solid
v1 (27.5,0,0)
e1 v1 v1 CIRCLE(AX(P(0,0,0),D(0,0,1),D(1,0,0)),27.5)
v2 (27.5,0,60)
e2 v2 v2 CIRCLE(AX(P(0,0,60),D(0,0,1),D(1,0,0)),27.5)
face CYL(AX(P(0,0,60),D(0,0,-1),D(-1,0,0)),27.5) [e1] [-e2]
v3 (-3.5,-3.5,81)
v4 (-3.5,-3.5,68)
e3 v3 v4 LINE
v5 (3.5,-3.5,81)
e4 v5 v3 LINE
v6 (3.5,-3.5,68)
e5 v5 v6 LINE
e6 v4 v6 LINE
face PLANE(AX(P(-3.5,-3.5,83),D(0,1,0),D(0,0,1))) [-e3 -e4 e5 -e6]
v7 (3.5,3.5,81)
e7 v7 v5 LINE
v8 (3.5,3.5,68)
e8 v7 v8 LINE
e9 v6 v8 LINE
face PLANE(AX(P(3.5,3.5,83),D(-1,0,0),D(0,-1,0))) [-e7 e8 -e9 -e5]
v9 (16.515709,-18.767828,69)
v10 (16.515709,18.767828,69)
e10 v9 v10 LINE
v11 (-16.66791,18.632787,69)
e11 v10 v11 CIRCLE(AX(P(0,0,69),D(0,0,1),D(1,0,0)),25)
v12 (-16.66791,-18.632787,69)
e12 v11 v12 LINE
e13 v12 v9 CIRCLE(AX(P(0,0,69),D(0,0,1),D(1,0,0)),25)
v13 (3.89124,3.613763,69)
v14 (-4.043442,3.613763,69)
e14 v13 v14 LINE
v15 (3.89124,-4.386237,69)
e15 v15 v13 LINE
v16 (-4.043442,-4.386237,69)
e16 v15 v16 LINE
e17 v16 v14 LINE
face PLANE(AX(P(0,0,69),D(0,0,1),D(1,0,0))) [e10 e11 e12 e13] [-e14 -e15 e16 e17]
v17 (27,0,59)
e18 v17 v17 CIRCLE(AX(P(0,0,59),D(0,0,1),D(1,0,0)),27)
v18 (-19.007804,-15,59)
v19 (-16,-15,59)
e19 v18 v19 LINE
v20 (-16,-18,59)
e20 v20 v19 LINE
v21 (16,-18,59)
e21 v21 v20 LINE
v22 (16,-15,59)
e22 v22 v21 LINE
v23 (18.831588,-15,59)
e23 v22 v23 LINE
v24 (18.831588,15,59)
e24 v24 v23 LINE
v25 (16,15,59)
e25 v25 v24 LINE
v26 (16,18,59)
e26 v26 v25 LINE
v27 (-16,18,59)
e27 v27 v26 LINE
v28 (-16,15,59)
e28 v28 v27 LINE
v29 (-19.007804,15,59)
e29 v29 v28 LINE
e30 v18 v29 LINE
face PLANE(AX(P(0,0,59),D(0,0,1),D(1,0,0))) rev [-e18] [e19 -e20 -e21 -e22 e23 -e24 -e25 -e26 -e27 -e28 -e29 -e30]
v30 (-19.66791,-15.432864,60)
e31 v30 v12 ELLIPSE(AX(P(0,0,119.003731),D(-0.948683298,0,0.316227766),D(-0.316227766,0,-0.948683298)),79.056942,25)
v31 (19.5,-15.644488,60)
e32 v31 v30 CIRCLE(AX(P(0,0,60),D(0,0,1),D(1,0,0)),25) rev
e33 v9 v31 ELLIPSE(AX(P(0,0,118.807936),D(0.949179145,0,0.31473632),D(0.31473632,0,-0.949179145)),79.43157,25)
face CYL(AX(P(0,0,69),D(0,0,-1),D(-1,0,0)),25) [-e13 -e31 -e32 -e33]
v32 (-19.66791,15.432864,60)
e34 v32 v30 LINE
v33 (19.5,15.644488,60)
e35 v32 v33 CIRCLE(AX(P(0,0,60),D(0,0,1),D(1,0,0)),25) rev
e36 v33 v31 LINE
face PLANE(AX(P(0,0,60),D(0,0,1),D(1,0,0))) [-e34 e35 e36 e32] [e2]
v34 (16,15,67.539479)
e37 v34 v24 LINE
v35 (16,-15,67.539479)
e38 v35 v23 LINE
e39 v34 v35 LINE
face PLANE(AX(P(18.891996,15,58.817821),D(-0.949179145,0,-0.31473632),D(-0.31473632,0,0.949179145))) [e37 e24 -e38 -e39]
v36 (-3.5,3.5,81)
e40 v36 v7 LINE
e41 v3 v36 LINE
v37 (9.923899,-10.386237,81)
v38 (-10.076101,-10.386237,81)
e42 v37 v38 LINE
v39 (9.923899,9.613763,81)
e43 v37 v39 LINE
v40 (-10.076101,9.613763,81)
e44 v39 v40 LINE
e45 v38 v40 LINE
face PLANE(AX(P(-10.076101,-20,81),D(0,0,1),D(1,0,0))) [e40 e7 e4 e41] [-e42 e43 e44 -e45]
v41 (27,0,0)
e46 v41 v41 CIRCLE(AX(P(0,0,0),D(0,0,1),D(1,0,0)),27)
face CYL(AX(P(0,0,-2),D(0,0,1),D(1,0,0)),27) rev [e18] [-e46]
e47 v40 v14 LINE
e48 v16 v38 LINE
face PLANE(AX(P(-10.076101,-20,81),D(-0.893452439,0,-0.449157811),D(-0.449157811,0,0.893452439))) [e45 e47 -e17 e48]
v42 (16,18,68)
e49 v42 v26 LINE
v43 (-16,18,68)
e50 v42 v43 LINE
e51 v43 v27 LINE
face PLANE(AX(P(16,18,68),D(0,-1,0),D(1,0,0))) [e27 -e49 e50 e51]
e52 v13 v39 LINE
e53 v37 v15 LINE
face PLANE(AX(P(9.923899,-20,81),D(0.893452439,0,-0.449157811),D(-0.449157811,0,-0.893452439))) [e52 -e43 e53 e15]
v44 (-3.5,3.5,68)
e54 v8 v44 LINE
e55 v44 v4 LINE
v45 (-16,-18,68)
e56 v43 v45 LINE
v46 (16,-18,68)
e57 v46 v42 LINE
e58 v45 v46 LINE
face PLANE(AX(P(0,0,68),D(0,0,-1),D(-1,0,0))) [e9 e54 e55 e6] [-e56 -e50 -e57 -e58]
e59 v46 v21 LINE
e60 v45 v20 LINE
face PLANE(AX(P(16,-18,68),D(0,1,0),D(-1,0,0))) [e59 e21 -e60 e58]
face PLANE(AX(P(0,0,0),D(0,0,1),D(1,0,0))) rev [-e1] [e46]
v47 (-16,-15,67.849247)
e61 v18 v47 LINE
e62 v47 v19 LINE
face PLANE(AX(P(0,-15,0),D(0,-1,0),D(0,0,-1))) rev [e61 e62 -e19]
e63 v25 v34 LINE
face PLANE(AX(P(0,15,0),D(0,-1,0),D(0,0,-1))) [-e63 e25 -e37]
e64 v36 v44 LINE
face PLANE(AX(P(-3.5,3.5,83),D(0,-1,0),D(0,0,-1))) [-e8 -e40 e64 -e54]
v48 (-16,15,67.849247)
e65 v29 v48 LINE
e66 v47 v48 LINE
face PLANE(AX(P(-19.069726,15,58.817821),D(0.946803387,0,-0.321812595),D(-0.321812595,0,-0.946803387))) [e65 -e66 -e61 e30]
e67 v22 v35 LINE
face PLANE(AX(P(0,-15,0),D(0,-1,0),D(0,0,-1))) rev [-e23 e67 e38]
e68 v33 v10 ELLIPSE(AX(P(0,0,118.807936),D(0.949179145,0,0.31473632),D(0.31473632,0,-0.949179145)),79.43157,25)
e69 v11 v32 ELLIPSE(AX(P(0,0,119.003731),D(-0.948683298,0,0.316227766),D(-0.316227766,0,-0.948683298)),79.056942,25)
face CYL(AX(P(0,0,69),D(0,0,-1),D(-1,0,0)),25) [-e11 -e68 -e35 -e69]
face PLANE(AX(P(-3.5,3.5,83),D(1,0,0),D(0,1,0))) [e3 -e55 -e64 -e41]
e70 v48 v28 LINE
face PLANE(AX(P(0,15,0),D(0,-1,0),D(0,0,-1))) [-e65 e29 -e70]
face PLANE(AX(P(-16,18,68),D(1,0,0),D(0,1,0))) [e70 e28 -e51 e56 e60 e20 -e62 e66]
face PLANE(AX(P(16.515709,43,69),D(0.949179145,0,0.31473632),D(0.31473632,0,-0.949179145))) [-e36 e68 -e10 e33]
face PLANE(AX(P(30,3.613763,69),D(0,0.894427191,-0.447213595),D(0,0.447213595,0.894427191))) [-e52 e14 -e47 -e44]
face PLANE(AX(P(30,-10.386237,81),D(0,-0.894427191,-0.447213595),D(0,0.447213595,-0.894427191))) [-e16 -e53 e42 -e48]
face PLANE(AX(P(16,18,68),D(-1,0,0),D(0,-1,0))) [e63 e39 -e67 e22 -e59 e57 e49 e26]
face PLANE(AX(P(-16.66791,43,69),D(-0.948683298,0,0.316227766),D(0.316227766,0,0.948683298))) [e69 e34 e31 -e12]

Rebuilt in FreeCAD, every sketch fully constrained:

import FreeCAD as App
import Part
import Sketcher
from FreeCAD import Vector


def add_polygon(sketch, points):
    """Adds a closed chain of lines whose ends are joined by coincident constraints."""
    first, n = sketch.GeometryCount, len(points)
    for a, b in zip(points, points[1:] + points[:1]):
        sketch.addGeometry(Part.LineSegment(App.Vector(*a, 0), App.Vector(*b, 0)), False)
    for i in range(n):
        sketch.addConstraint(Sketcher.Constraint("Coincident", first + i, 2, first + (i + 1) % n, 1))

doc = App.newDocument("Part")
body = doc.addObject("PartDesign::Body", "Body")

# Sketch on XY plane
sketch1 = body.newObject("Sketcher::SketchObject", "Sketch")
sketch1.AttachmentSupport = (doc.getObject("XY_Plane"), [""])
sketch1.MapMode = "FlatFace"
sketch1.addGeometry(Part.Circle(Vector(0, 0, 0), Vector(0, 0, 1), 28), False)
sketch1.addConstraint(Sketcher.Constraint("Coincident", 0, 3, -1, 1))
sketch1.addConstraint(Sketcher.Constraint("Diameter", 0, 55.0))
pad1 = body.newObject("PartDesign::Pad", "Pad")
pad1.Profile = sketch1
pad1.Length = 60

# Sketch on XY plane
sketch2 = body.newObject("Sketcher::SketchObject", "Sketch001")
sketch2.AttachmentSupport = (doc.getObject("XY_Plane"), [""])
sketch2.MapMode = "FlatFace"
sketch2.addGeometry(Part.Circle(Vector(0, 0, 0), Vector(0, 0, 1), 27), False)
sketch2.addConstraint(Sketcher.Constraint("Coincident", 0, 3, -1, 1))
sketch2.addConstraint(Sketcher.Constraint("Diameter", 0, 54.0))
pocket1 = body.newObject("PartDesign::Pocket", "Pocket")
pocket1.Profile = sketch2
pocket1.Type = "TwoLengths"
pocket1.Length = 59
pocket1.Length2 = 2
pocket1.Reversed = True

# Sketch on XY plane
sketch3 = body.newObject("Sketcher::SketchObject", "Sketch002")
sketch3.AttachmentSupport = (doc.getObject("XY_Plane"), [""])
sketch3.MapMode = "FlatFace"
sketch3.addGeometry(Part.Circle(Vector(0, 0, 0), Vector(0, 0, 1), 25), False)
sketch3.addConstraint(Sketcher.Constraint("Coincident", 0, 3, -1, 1))
sketch3.addConstraint(Sketcher.Constraint("Diameter", 0, 50.0))
pad2 = body.newObject("PartDesign::Pad", "Pad001")
pad2.Profile = sketch3
pad2.Length = 69

# Sketch on XZ plane
sketch4 = body.newObject("Sketcher::SketchObject", "Sketch003")
sketch4.AttachmentSupport = (doc.getObject("XZ_Plane"), [""])
sketch4.MapMode = "FlatFace"
add_polygon(sketch4, [(-20, 60), (-28, 60), (-28, 69), (-17, 69)])  # lines 0-3
add_polygon(sketch4, [(28, 60), (20, 60), (17, 69), (28, 69)])  # lines 4-7
sketch4.addConstraint(Sketcher.Constraint("Horizontal", 0))
sketch4.addConstraint(Sketcher.Constraint("Vertical", 1))
sketch4.addConstraint(Sketcher.Constraint("Horizontal", 2))
sketch4.addConstraint(Sketcher.Constraint("Horizontal", 4))
sketch4.addConstraint(Sketcher.Constraint("Horizontal", 6))
sketch4.addConstraint(Sketcher.Constraint("Vertical", 7))
sketch4.addConstraint(Sketcher.Constraint("Horizontal", 3, 2, 4, 2))
sketch4.addConstraint(Sketcher.Constraint("Horizontal", 2, 2, 5, 2))
sketch4.addConstraint(Sketcher.Constraint("Equal", 0, 4))
sketch4.addConstraint(Sketcher.Constraint("DistanceX", 0, 2, 0, 1, 8.0))
sketch4.addConstraint(Sketcher.Constraint("DistanceX", 2, 1, 2, 2, 11.0))
sketch4.addConstraint(Sketcher.Constraint("DistanceY", 1, 1, 1, 2, 9.0))
sketch4.addConstraint(Sketcher.Constraint("DistanceY", -1, 1, 0, 2, 60.0))
sketch4.addConstraint(Sketcher.Constraint("DistanceX", -1, 1, 4, 2, 19.5))
sketch4.addConstraint(Sketcher.Constraint("DistanceX", 6, 1, 6, 2, 10.984291))
sketch4.addConstraint(Sketcher.Constraint("DistanceX", 0, 2, -1, 1, 27.66791))
pocket2 = body.newObject("PartDesign::Pocket", "Pocket001")
pocket2.Profile = sketch4
pocket2.Type = "ThroughAll"
pocket2.Midplane = True

# Sketch on XZ plane
sketch5 = body.newObject("Sketcher::SketchObject", "Sketch004")
sketch5.AttachmentSupport = (doc.getObject("XZ_Plane"), [""])
sketch5.MapMode = "FlatFace"
add_polygon(sketch5, [(4, 69), (-4, 69), (-10, 81), (10, 81)])  # lines 0-3
sketch5.addConstraint(Sketcher.Constraint("Horizontal", 0))
sketch5.addConstraint(Sketcher.Constraint("Horizontal", 2))
sketch5.addConstraint(Sketcher.Constraint("Equal", 1, 3))
sketch5.addConstraint(Sketcher.Constraint("DistanceX", 2, 1, 2, 2, 20.0))
sketch5.addConstraint(Sketcher.Constraint("DistanceY", -1, 1, 0, 2, 69.0))
sketch5.addConstraint(Sketcher.Constraint("DistanceY", -1, 1, 1, 2, 81.0))
sketch5.addConstraint(Sketcher.Constraint("DistanceX", 1, 2, -1, 1, 10.076101))
sketch5.addConstraint(Sketcher.Constraint("DistanceX", 0, 2, 0, 1, 7.934682))
pad3 = body.newObject("PartDesign::Pad", "Pad002")
pad3.Profile = sketch5
pad3.Type = "TwoLengths"
pad3.Length = 20
pad3.Length2 = 20
pad3.Reversed = True

# Sketch on YZ plane
sketch6 = body.newObject("Sketcher::SketchObject", "Sketch005")
sketch6.AttachmentSupport = (doc.getObject("YZ_Plane"), [""])
sketch6.MapMode = "FlatFace"
add_polygon(sketch6, [(-4, 69), (-10, 81), (-23, 81), (-23, 69)])  # lines 0-3
add_polygon(sketch6, [(10, 81), (4, 69), (21, 69), (21, 81)])  # lines 4-7
sketch6.addConstraint(Sketcher.Constraint("Horizontal", 1))
sketch6.addConstraint(Sketcher.Constraint("Vertical", 2))
sketch6.addConstraint(Sketcher.Constraint("Horizontal", 3))
sketch6.addConstraint(Sketcher.Constraint("Horizontal", 5))
sketch6.addConstraint(Sketcher.Constraint("Vertical", 6))
sketch6.addConstraint(Sketcher.Constraint("Horizontal", 7))
sketch6.addConstraint(Sketcher.Constraint("Horizontal", 3, 2, 4, 2))
sketch6.addConstraint(Sketcher.Constraint("Horizontal", 1, 2, 6, 2))
sketch6.addConstraint(Sketcher.Constraint("Equal", 0, 4))
sketch6.addConstraint(Sketcher.Constraint("DistanceY", 2, 2, 2, 1, 12.0))
sketch6.addConstraint(Sketcher.Constraint("DistanceY", -1, 1, 0, 2, 81.0))
sketch6.addConstraint(Sketcher.Constraint("DistanceX", 0, 2, 3, 2, 6.0))
sketch6.addConstraint(Sketcher.Constraint("DistanceX", 3, 2, 4, 2, 8.0))
sketch6.addConstraint(Sketcher.Constraint("DistanceX", 5, 1, 5, 2, 17.773281))
sketch6.addConstraint(Sketcher.Constraint("DistanceX", 1, 2, 1, 1, 12.420543))
sketch6.addConstraint(Sketcher.Constraint("DistanceX", 1, 2, -1, 1, 22.80678))
pocket3 = body.newObject("PartDesign::Pocket", "Pocket002")
pocket3.Profile = sketch6
pocket3.Type = "ThroughAll"
pocket3.Midplane = True

# Sketch on XY plane
sketch7 = body.newObject("Sketcher::SketchObject", "Sketch006")
sketch7.AttachmentSupport = (doc.getObject("XY_Plane"), [""])
sketch7.MapMode = "FlatFace"
sketch7.addGeometry(Part.Circle(Vector(0, 0, 0), Vector(0, 0, 1), 26), False)
sketch7.addConstraint(Sketcher.Constraint("Coincident", 0, 3, -1, 1))
sketch7.addConstraint(Sketcher.Constraint("Diameter", 0, 51.755832))
pocket4 = body.newObject("PartDesign::Pocket", "Pocket003")
pocket4.Profile = sketch7
pocket4.Length = 59
pocket4.Reversed = True

# Sketch on XY plane
sketch8 = body.newObject("Sketcher::SketchObject", "Sketch007")
sketch8.AttachmentSupport = (doc.getObject("XY_Plane"), [""])
sketch8.MapMode = "FlatFace"
add_polygon(sketch8, [(-16, 18), (-16, -18), (16, -18), (16, 18)])  # lines 0-3
sketch8.addConstraint(Sketcher.Constraint("Vertical", 0))
sketch8.addConstraint(Sketcher.Constraint("Horizontal", 1))
sketch8.addConstraint(Sketcher.Constraint("Vertical", 2))
sketch8.addConstraint(Sketcher.Constraint("Horizontal", 3))
sketch8.addConstraint(Sketcher.Constraint("Symmetric", 0, 2, 2, 2, -1, 1))
sketch8.addConstraint(Sketcher.Constraint("DistanceX", 1, 1, 1, 2, 32.0))
sketch8.addConstraint(Sketcher.Constraint("DistanceY", 0, 2, 0, 1, 36.0))
pocket5 = body.newObject("PartDesign::Pocket", "Pocket004")
pocket5.Profile = sketch8
pocket5.Type = "TwoLengths"
pocket5.Length = 68
pocket5.Length2 = 1
pocket5.Reversed = True

# Sketch on XZ plane
sketch9 = body.newObject("Sketcher::SketchObject", "Sketch008")
sketch9.AttachmentSupport = (doc.getObject("XZ_Plane"), [""])
sketch9.MapMode = "FlatFace"
add_polygon(sketch9, [(19, 59), (-19, 59), (-16, 68), (16, 68)])  # lines 0-3
sketch9.addConstraint(Sketcher.Constraint("Horizontal", 0))
sketch9.addConstraint(Sketcher.Constraint("Horizontal", 2))
sketch9.addConstraint(Sketcher.Constraint("DistanceY", -1, 1, 1, 2, 68.0))
sketch9.addConstraint(Sketcher.Constraint("DistanceX", 0, 2, 0, 1, 37.961722))
sketch9.addConstraint(Sketcher.Constraint("DistanceX", 2, 2, 3, 2, 3.044699))
sketch9.addConstraint(Sketcher.Constraint("Distance", 3, 9.67381))
sketch9.addConstraint(Sketcher.Constraint("DistanceX", 2, 1, 2, 2, 31.796057))
sketch9.addConstraint(Sketcher.Constraint("DistanceX", 1, 2, -1, 1, 15.94876))
pocket6 = body.newObject("PartDesign::Pocket", "Pocket005")
pocket6.Profile = sketch9
pocket6.Type = "TwoLengths"
pocket6.Length = 15
pocket6.Length2 = 15

# Sketch on XY plane
sketch10 = body.newObject("Sketcher::SketchObject", "Sketch009")
sketch10.AttachmentSupport = (doc.getObject("XY_Plane"), [""])
sketch10.MapMode = "FlatFace"
add_polygon(sketch10, [(-4, 4), (-4, -4), (4, -4), (4, 4)])  # lines 0-3
sketch10.addConstraint(Sketcher.Constraint("Vertical", 0))
sketch10.addConstraint(Sketcher.Constraint("Horizontal", 1))
sketch10.addConstraint(Sketcher.Constraint("Vertical", 2))
sketch10.addConstraint(Sketcher.Constraint("Horizontal", 3))
sketch10.addConstraint(Sketcher.Constraint("Symmetric", 0, 2, 2, 2, -1, 1))
sketch10.addConstraint(Sketcher.Constraint("Equal", 3, 0))
sketch10.addConstraint(Sketcher.Constraint("DistanceX", 1, 1, 1, 2, 7.0))
pocket7 = body.newObject("PartDesign::Pocket", "Pocket006")
pocket7.Profile = sketch10
pocket7.Length = 83
pocket7.Reversed = True

doc.recompute()
